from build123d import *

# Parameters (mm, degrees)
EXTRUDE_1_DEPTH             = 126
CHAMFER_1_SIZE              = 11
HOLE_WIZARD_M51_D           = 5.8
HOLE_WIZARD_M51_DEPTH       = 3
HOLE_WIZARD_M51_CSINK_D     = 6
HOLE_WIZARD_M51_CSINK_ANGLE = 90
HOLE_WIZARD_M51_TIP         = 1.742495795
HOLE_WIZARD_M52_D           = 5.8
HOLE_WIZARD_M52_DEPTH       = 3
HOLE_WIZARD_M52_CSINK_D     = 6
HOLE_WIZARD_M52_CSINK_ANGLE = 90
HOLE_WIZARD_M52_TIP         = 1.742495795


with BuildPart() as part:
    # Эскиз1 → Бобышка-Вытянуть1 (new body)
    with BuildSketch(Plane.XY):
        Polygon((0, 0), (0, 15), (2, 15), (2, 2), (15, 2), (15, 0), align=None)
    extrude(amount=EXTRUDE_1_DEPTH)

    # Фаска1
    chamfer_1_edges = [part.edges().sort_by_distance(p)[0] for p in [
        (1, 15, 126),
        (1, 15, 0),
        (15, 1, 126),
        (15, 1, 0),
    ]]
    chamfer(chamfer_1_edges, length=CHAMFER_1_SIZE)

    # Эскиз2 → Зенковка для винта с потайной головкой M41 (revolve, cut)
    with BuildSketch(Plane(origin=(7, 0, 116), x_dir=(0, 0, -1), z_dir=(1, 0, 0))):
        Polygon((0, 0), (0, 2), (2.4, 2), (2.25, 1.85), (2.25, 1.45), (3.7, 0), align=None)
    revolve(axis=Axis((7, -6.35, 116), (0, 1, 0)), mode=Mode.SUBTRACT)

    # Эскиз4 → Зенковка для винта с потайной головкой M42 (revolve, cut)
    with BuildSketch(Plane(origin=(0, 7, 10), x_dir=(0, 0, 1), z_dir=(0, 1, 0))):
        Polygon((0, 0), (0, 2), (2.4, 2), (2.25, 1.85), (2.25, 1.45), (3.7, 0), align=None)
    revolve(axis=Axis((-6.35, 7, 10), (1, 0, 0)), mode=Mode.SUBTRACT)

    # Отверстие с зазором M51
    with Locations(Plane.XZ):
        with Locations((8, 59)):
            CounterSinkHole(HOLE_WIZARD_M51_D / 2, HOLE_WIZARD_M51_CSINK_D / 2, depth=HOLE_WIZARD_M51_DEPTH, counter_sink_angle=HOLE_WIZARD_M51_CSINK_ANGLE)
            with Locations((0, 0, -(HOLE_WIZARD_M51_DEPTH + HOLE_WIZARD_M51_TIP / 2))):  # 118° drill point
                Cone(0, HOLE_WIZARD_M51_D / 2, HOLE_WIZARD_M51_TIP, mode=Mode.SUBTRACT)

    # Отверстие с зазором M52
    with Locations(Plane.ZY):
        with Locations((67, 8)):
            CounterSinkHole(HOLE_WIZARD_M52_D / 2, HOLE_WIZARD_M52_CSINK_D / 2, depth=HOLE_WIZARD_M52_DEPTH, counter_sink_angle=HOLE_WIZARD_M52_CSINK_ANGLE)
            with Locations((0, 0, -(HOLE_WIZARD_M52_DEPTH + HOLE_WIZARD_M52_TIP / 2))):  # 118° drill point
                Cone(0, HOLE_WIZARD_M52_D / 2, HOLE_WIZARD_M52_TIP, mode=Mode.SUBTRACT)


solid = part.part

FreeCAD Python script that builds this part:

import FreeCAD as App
import Part
import Sketcher

V = App.Vector
Q = App.Units.Quantity


def edges_at(feature, points):
    """Names of the edges that pass closest to the given points."""
    edges = feature.Shape.Edges
    near = lambda p: min(range(len(edges)), key=lambda i: edges[i].distToShape(Part.Vertex(*p))[0])
    return sorted({f"Edge{near(p) + 1}" for p in points})

doc = App.newDocument("Part")
body = doc.addObject("PartDesign::Body", "Body")

# Sketch on XY plane
sketch1 = doc.addObject("Sketcher::SketchObject", "Sketch")
body.addObject(sketch1)
sketch1.AttachmentSupport = (doc.XY_Plane, [""])
sketch1.MapMode = "FlatFace"
sketch1.addGeometry([
    Part.LineSegment(V(0, 15, 0), V(0, 0, 0)),  # 0
    Part.LineSegment(V(0, 0, 0), V(15, 0, 0)),  # 1
    Part.LineSegment(V(15, 0, 0), V(15, 2, 0)),  # 2
    Part.LineSegment(V(15, 2, 0), V(2, 2, 0)),  # 3
    Part.LineSegment(V(2, 2, 0), V(2, 15, 0)),  # 4
    Part.LineSegment(V(2, 15, 0), V(0, 15, 0)),  # 5
], False)
sketch1.addConstraint([
    Sketcher.Constraint("Coincident", 0, 2, 1, 1),
    Sketcher.Constraint("Coincident", 1, 2, 2, 1),
    Sketcher.Constraint("Coincident", 2, 2, 3, 1),
    Sketcher.Constraint("Coincident", 3, 2, 4, 1),
    Sketcher.Constraint("Coincident", 4, 2, 5, 1),
    Sketcher.Constraint("Coincident", 5, 2, 0, 1),
    Sketcher.Constraint("Vertical", 0),
    Sketcher.Constraint("Horizontal", 1),
    Sketcher.Constraint("Vertical", 2),
    Sketcher.Constraint("Horizontal", 3),
    Sketcher.Constraint("Vertical", 4),
    Sketcher.Constraint("Horizontal", 5),
    Sketcher.Constraint("Coincident", 0, 2, -1, 1),
    Sketcher.Constraint("Equal", 1, 0),
    Sketcher.Constraint("Equal", 5, 2),
    Sketcher.Constraint("DistanceX", 1, 1, 1, 2, Q("15 mm")),
    Sketcher.Constraint("DistanceX", 3, 2, 3, 1, Q("13 mm")),
])
pad1 = doc.addObject("PartDesign::Pad", "Pad")
body.addObject(pad1)
pad1.Profile = sketch1
pad1.Length = 126
doc.recompute()

chamfer = doc.addObject("PartDesign::Chamfer", "Chamfer")
body.addObject(chamfer)
chamfer.Base = (pad1, edges_at(pad1, [
    (1, 15, 126),
    (1, 15, 0),
    (15, 1, 126),
    (15, 1, 0),
]))
chamfer.Size = 11

# Sketch on YZ plane
sketch2 = doc.addObject("Sketcher::SketchObject", "Sketch001")
body.addObject(sketch2)
sketch2.AttachmentSupport = (doc.YZ_Plane, [""])
sketch2.MapMode = "FlatFace"
sketch2.AttachmentOffset = App.Placement(V(0, 0, 7), App.Rotation())
sketch2.addGeometry([
    Part.LineSegment(V(2, 116, 0), V(0, 116, 0)),  # 0
    Part.LineSegment(V(0, 116, 0), V(0, 112.3, 0)),  # 1
    Part.LineSegment(V(0, 112.3, 0), V(1.45, 113.75, 0)),  # 2
    Part.LineSegment(V(1.45, 113.75, 0), V(1.85, 113.75, 0)),  # 3
    Part.LineSegment(V(1.85, 113.75, 0), V(2, 113.6, 0)),  # 4
    Part.LineSegment(V(2, 113.6, 0), V(2, 116, 0)),  # 5
], False)
sketch2.addGeometry(Part.LineSegment(V(0, 116, 0), V(2, 116, 0)), True)  # axis
sketch2.addConstraint([
    Sketcher.Constraint("Coincident", 0, 2, 1, 1),
    Sketcher.Constraint("Coincident", 1, 2, 2, 1),
    Sketcher.Constraint("Coincident", 2, 2, 3, 1),
    Sketcher.Constraint("Coincident", 3, 2, 4, 1),
    Sketcher.Constraint("Coincident", 4, 2, 5, 1),
    Sketcher.Constraint("Coincident", 5, 2, 0, 1),
    Sketcher.Constraint("Horizontal", 0),
    Sketcher.Constraint("Vertical", 1),
    Sketcher.Constraint("Horizontal", 3),
    Sketcher.Constraint("Vertical", 5),
    Sketcher.Constraint("Horizontal", 6),
    Sketcher.Constraint("Coincident", 6, 1, 0, 2),
    Sketcher.Constraint("PointOnObject", 0, 2, -2),
    Sketcher.Constraint("Perpendicular", 2, 4),
    Sketcher.Constraint("Vertical", 4, 2, 6, 2),
    Sketcher.Constraint("DistanceX", 0, 2, 0, 1, Q("2 mm")),
    Sketcher.Constraint("Angle", 2, Q("45 deg")),
    Sketcher.Constraint("DistanceX", 3, 1, 3, 2, Q("0.4 mm")),
    Sketcher.Constraint("DistanceY", 1, 2, 1, 1, Q("3.7 mm")),
    Sketcher.Constraint("DistanceY", 5, 1, 5, 2, Q("2.4 mm")),
    Sketcher.Constraint("DistanceY", -1, 1, 0, 2, Q("116 mm")),
])
groove = doc.addObject("PartDesign::Groove", "Groove")
body.addObject(groove)
groove.Profile = sketch2
groove.ReferenceAxis = (sketch2, ["Axis0"])
groove.Angle = 360

# Sketch on XZ plane
sketch3 = doc.addObject("Sketcher::SketchObject", "Sketch002")
body.addObject(sketch3)
sketch3.AttachmentSupport = (doc.XZ_Plane, [""])
sketch3.MapMode = "FlatFace"
sketch3.AttachmentOffset = App.Placement(V(0, 0, -7), App.Rotation())
sketch3.addGeometry([
    Part.LineSegment(V(2, 10, 0), V(0, 10, 0)),  # 0
    Part.LineSegment(V(0, 10, 0), V(0, 13.7, 0)),  # 1
    Part.LineSegment(V(0, 13.7, 0), V(1.45, 12.25, 0)),  # 2
    Part.LineSegment(V(1.45, 12.25, 0), V(1.85, 12.25, 0)),  # 3
    Part.LineSegment(V(1.85, 12.25, 0), V(2, 12.4, 0)),  # 4
    Part.LineSegment(V(2, 12.4, 0), V(2, 10, 0)),  # 5
], False)
sketch3.addGeometry(Part.LineSegment(V(0, 10, 0), V(2, 10, 0)), True)  # axis
sketch3.addConstraint([
    Sketcher.Constraint("Coincident", 0, 2, 1, 1),
    Sketcher.Constraint("Coincident", 1, 2, 2, 1),
    Sketcher.Constraint("Coincident", 2, 2, 3, 1),
    Sketcher.Constraint("Coincident", 3, 2, 4, 1),
    Sketcher.Constraint("Coincident", 4, 2, 5, 1),
    Sketcher.Constraint("Coincident", 5, 2, 0, 1),
    Sketcher.Constraint("Horizontal", 0),
    Sketcher.Constraint("Vertical", 1),
    Sketcher.Constraint("Horizontal", 3),
    Sketcher.Constraint("Vertical", 5),
    Sketcher.Constraint("Horizontal", 6),
    Sketcher.Constraint("Coincident", 6, 1, 0, 2),
    Sketcher.Constraint("PointOnObject", 0, 2, -2),
    Sketcher.Constraint("Perpendicular", 2, 4),
    Sketcher.Constraint("Vertical", 4, 2, 6, 2),
    Sketcher.Constraint("DistanceX", 0, 2, 0, 1, Q("2 mm")),
    Sketcher.Constraint("Angle", 2, Q("-45 deg")),
    Sketcher.Constraint("DistanceX", 3, 1, 3, 2, Q("0.4 mm")),
    Sketcher.Constraint("DistanceY", 1, 1, 1, 2, Q("3.7 mm")),
    Sketcher.Constraint("DistanceY", 5, 2, 5, 1, Q("2.4 mm")),
    Sketcher.Constraint("DistanceY", -1, 1, 0, 2, Q("10 mm")),
])
groove2 = doc.addObject("PartDesign::Groove", "Groove001")
body.addObject(groove2)
groove2.Profile = sketch3
groove2.ReferenceAxis = (sketch3, ["Axis0"])
groove2.Angle = 360

# Sketch on XZ plane
sketch4 = doc.addObject("Sketcher::SketchObject", "Sketch003")
body.addObject(sketch4)
sketch4.AttachmentSupport = (doc.XZ_Plane, [""])
sketch4.MapMode = "FlatFace"
sketch4.addGeometry(Part.Circle(V(8, 59, 0), V(0, 0, 1), 2.9), False)
sketch4.addConstraint([
    Sketcher.Constraint("Diameter", 0, Q("5.8 mm")),
    Sketcher.Constraint("DistanceX", -1, 1, 0, 3, Q("8 mm")),
    Sketcher.Constraint("DistanceY", -1, 1, 0, 3, Q("59 mm")),
])
doc.recompute()
hole = doc.addObject("PartDesign::Hole", "Hole")
body.addObject(hole)
hole.Profile = sketch4
hole.ThreadType = "None"
hole.Diameter = 5.8
hole.DepthType = "Dimension"
hole.Depth = 3
hole.DrillPoint = "Angled"
hole.DrillPointAngle = 118
hole.HoleCutType = "Countersink"
hole.HoleCutDiameter = 6
hole.HoleCutCountersinkAngle = 90

# Sketch on YZ plane
sketch5 = doc.addObject("Sketcher::SketchObject", "Sketch004")
body.addObject(sketch5)
sketch5.AttachmentSupport = (doc.YZ_Plane, [""])
sketch5.MapMode = "FlatFace"
sketch5.addGeometry(Part.Circle(V(8, 67, 0), V(0, 0, 1), 2.9), False)
sketch5.addConstraint([
    Sketcher.Constraint("Diameter", 0, Q("5.8 mm")),
    Sketcher.Constraint("DistanceX", -1, 1, 0, 3, Q("8 mm")),
    Sketcher.Constraint("DistanceY", -1, 1, 0, 3, Q("67 mm")),
])
doc.recompute()
hole2 = doc.addObject("PartDesign::Hole", "Hole001")
body.addObject(hole2)
hole2.Profile = sketch5
hole2.ThreadType = "None"
hole2.Diameter = 5.8
hole2.DepthType = "Dimension"
hole2.Depth = 3
hole2.DrillPoint = "Angled"
hole2.DrillPointAngle = 118
hole2.HoleCutType = "Countersink"
hole2.HoleCutDiameter = 6
hole2.HoleCutCountersinkAngle = 90
hole2.Reversed = True

doc.recompute()
